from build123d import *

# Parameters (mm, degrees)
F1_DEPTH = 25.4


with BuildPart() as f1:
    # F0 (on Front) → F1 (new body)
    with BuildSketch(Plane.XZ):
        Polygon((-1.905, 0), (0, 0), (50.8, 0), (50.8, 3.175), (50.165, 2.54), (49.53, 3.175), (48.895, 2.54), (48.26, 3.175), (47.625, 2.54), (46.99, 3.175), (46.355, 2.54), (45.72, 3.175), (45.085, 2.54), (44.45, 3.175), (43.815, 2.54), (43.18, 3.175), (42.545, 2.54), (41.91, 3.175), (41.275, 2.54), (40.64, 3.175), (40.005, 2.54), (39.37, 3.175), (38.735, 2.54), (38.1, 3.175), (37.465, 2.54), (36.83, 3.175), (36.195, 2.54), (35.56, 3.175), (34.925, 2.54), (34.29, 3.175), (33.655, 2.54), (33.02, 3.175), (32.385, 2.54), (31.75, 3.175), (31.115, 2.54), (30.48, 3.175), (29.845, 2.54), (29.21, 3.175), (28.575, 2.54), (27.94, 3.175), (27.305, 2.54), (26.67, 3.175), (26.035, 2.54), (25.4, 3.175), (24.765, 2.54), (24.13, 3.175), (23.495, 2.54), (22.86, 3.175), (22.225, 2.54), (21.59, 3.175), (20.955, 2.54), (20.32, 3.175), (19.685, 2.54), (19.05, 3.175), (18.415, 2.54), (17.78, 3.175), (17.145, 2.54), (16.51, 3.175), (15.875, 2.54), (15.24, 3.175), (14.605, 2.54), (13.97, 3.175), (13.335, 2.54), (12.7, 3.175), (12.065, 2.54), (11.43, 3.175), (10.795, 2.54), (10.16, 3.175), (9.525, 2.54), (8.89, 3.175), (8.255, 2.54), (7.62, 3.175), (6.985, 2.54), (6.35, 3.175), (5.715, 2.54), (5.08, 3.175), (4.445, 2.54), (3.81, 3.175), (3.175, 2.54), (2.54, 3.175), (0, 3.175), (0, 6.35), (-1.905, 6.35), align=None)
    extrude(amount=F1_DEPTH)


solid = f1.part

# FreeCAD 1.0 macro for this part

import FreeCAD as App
import Part
import Sketcher
Q = App.Units.Quantity


def add_polygon(sketch, points):
    """Adds a closed chain of lines whose ends are joined by coincident constraints."""
    first, n = sketch.GeometryCount, len(points)
    for a, b in zip(points, points[1:] + points[:1]):
        sketch.addGeometry(Part.LineSegment(App.Vector(*a, 0), App.Vector(*b, 0)), False)
    for i in range(n):
        sketch.addConstraint(Sketcher.Constraint("Coincident", first + i, 2, first + (i + 1) % n, 1))

doc = App.newDocument("Part")
body = doc.addObject("PartDesign::Body", "Body")

# Sketch on XZ plane
sketch1 = doc.addObject("Sketcher::SketchObject", "Sketch")
body.addObject(sketch1)
sketch1.AttachmentSupport = (doc.XZ_Plane, [""])
sketch1.MapMode = "FlatFace"
add_polygon(sketch1, [(-1.905, 0), (50.8, 0), (50.8, 3.175), (50.165, 2.54), (49.53, 3.175), (48.895, 2.54), (48.26, 3.175), (47.625, 2.54), (46.99, 3.175), (46.355, 2.54), (45.72, 3.175), (45.085, 2.54), (44.45, 3.175), (43.815, 2.54), (43.18, 3.175), (42.545, 2.54), (41.91, 3.175), (41.275, 2.54), (40.64, 3.175), (40.005, 2.54), (39.37, 3.175), (38.735, 2.54), (38.1, 3.175), (37.465, 2.54), (36.83, 3.175), (36.195, 2.54), (35.56, 3.175), (34.925, 2.54), (34.29, 3.175), (33.655, 2.54), (33.02, 3.175), (32.385, 2.54), (31.75, 3.175), (31.115, 2.54), (30.48, 3.175), (29.845, 2.54), (29.21, 3.175), (28.575, 2.54), (27.94, 3.175), (27.305, 2.54), (26.67, 3.175), (26.035, 2.54), (25.4, 3.175), (24.765, 2.54), (24.13, 3.175), (23.495, 2.54), (22.86, 3.175), (22.225, 2.54), (21.59, 3.175), (20.955, 2.54), (20.32, 3.175), (19.685, 2.54), (19.05, 3.175), (18.415, 2.54), (17.78, 3.175), (17.145, 2.54), (16.51, 3.175), (15.875, 2.54), (15.24, 3.175), (14.605, 2.54), (13.97, 3.175), (13.335, 2.54), (12.7, 3.175), (12.065, 2.54), (11.43, 3.175), (10.795, 2.54), (10.16, 3.175), (9.525, 2.54), (8.89, 3.175), (8.255, 2.54), (7.62, 3.175), (6.985, 2.54), (6.35, 3.175), (5.715, 2.54), (5.08, 3.175), (4.445, 2.54), (3.81, 3.175), (3.175, 2.54), (2.54, 3.175), (0, 3.175), (0, 6.35), (-1.905, 6.35)])  # lines 0-81
sketch1.addConstraint([
    Sketcher.Constraint("Horizontal", 0),
    Sketcher.Constraint("Vertical", 1),
    Sketcher.Constraint("Horizontal", 78),
    Sketcher.Constraint("Vertical", 79),
    Sketcher.Constraint("Horizontal", 80),
    Sketcher.Constraint("Vertical", 81),
    Sketcher.Constraint("PointOnObject", 0, 2, -1),
    Sketcher.Constraint("PointOnObject", 78, 2, -2),
    Sketcher.Constraint("Perpendicular", 2, 3),
    Sketcher.Constraint("Perpendicular", 3, 4),
    Sketcher.Constraint("Perpendicular", 4, 5),
    Sketcher.Constraint("Perpendicular", 5, 6),
    Sketcher.Constraint("Perpendicular", 6, 7),
    Sketcher.Constraint("Perpendicular", 7, 8),
    Sketcher.Constraint("Perpendicular", 8, 9),
    Sketcher.Constraint("Perpendicular", 9, 10),
    Sketcher.Constraint("Perpendicular", 10, 11),
    Sketcher.Constraint("Perpendicular", 11, 12),
    Sketcher.Constraint("Perpendicular", 12, 13),
    Sketcher.Constraint("Perpendicular", 13, 14),
    Sketcher.Constraint("Perpendicular", 14, 15),
    Sketcher.Constraint("Perpendicular", 15, 16),
    Sketcher.Constraint("Perpendicular", 16, 17),
    Sketcher.Constraint("Perpendicular", 17, 18),
    Sketcher.Constraint("Perpendicular", 18, 19),
    Sketcher.Constraint("Perpendicular", 19, 20),
    Sketcher.Constraint("Perpendicular", 20, 21),
    Sketcher.Constraint("Perpendicular", 21, 22),
    Sketcher.Constraint("Perpendicular", 22, 23),
    Sketcher.Constraint("Perpendicular", 23, 24),
    Sketcher.Constraint("Perpendicular", 24, 25),
    Sketcher.Constraint("Perpendicular", 25, 26),
    Sketcher.Constraint("Perpendicular", 26, 27),
    Sketcher.Constraint("Perpendicular", 27, 28),
    Sketcher.Constraint("Perpendicular", 28, 29),
    Sketcher.Constraint("Perpendicular", 29, 30),
    Sketcher.Constraint("Perpendicular", 30, 31),
    Sketcher.Constraint("Perpendicular", 31, 32),
    Sketcher.Constraint("Perpendicular", 32, 33),
    Sketcher.Constraint("Perpendicular", 33, 34),
    Sketcher.Constraint("Perpendicular", 34, 35),
    Sketcher.Constraint("Perpendicular", 35, 36),
    Sketcher.Constraint("Perpendicular", 36, 37),
    Sketcher.Constraint("Perpendicular", 37, 38),
    Sketcher.Constraint("Perpendicular", 38, 39),
    Sketcher.Constraint("Perpendicular", 39, 40),
    Sketcher.Constraint("Perpendicular", 40, 41),
    Sketcher.Constraint("Perpendicular", 41, 42),
    Sketcher.Constraint("Perpendicular", 42, 43),
    Sketcher.Constraint("Perpendicular", 43, 44),
    Sketcher.Constraint("Perpendicular", 44, 45),
    Sketcher.Constraint("Perpendicular", 45, 46),
    Sketcher.Constraint("Perpendicular", 46, 47),
    Sketcher.Constraint("Perpendicular", 47, 48),
    Sketcher.Constraint("Perpendicular", 48, 49),
    Sketcher.Constraint("Perpendicular", 49, 50),
    Sketcher.Constraint("Perpendicular", 50, 51),
    Sketcher.Constraint("Perpendicular", 51, 52),
    Sketcher.Constraint("Perpendicular", 52, 53),
    Sketcher.Constraint("Perpendicular", 53, 54),
    Sketcher.Constraint("Perpendicular", 54, 55),
    Sketcher.Constraint("Perpendicular", 55, 56),
    Sketcher.Constraint("Perpendicular", 56, 57),
    Sketcher.Constraint("Perpendicular", 57, 58),
    Sketcher.Constraint("Perpendicular", 58, 59),
    Sketcher.Constraint("Perpendicular", 59, 60),
    Sketcher.Constraint("Perpendicular", 60, 61),
    Sketcher.Constraint("Perpendicular", 61, 62),
    Sketcher.Constraint("Perpendicular", 62, 63),
    Sketcher.Constraint("Perpendicular", 63, 64),
    Sketcher.Constraint("Perpendicular", 64, 65),
    Sketcher.Constraint("Perpendicular", 65, 66),
    Sketcher.Constraint("Perpendicular", 66, 67),
    Sketcher.Constraint("Perpendicular", 67, 68),
    Sketcher.Constraint("Perpendicular", 68, 69),
    Sketcher.Constraint("Perpendicular", 69, 70),
    Sketcher.Constraint("Perpendicular", 70, 71),
    Sketcher.Constraint("Perpendicular", 71, 72),
    Sketcher.Constraint("Perpendicular", 72, 73),
    Sketcher.Constraint("Perpendicular", 73, 74),
    Sketcher.Constraint("Perpendicular", 74, 75),
    Sketcher.Constraint("Perpendicular", 75, 76),
    Sketcher.Constraint("Perpendicular", 76, 77),
    Sketcher.Constraint("Horizontal", 1, 2, 3, 2),
    Sketcher.Constraint("Horizontal", 2, 2, 4, 2),
    Sketcher.Constraint("Horizontal", 3, 2, 5, 2),
    Sketcher.Constraint("Horizontal", 4, 2, 6, 2),
    Sketcher.Constraint("Horizontal", 5, 2, 7, 2),
    Sketcher.Constraint("Horizontal", 6, 2, 8, 2),
    Sketcher.Constraint("Horizontal", 7, 2, 9, 2),
    Sketcher.Constraint("Horizontal", 8, 2, 10, 2),
    Sketcher.Constraint("Horizontal", 9, 2, 11, 2),
    Sketcher.Constraint("Horizontal", 10, 2, 12, 2),
    Sketcher.Constraint("Horizontal", 11, 2, 13, 2),
    Sketcher.Constraint("Horizontal", 12, 2, 14, 2),
    Sketcher.Constraint("Horizontal", 13, 2, 15, 2),
    Sketcher.Constraint("Horizontal", 14, 2, 16, 2),
    Sketcher.Constraint("Horizontal", 15, 2, 17, 2),
    Sketcher.Constraint("Horizontal", 16, 2, 18, 2),
    Sketcher.Constraint("Horizontal", 17, 2, 19, 2),
    Sketcher.Constraint("Horizontal", 18, 2, 20, 2),
    Sketcher.Constraint("Horizontal", 19, 2, 21, 2),
    Sketcher.Constraint("Horizontal", 20, 2, 22, 2),
    Sketcher.Constraint("Horizontal", 21, 2, 23, 2),
    Sketcher.Constraint("Horizontal", 22, 2, 24, 2),
    Sketcher.Constraint("Horizontal", 23, 2, 25, 2),
    Sketcher.Constraint("Horizontal", 24, 2, 26, 2),
    Sketcher.Constraint("Horizontal", 25, 2, 27, 2),
    Sketcher.Constraint("Horizontal", 26, 2, 28, 2),
    Sketcher.Constraint("Horizontal", 27, 2, 29, 2),
    Sketcher.Constraint("Horizontal", 28, 2, 30, 2),
    Sketcher.Constraint("Horizontal", 29, 2, 31, 2),
    Sketcher.Constraint("Horizontal", 30, 2, 32, 2),
    Sketcher.Constraint("Horizontal", 31, 2, 33, 2),
    Sketcher.Constraint("Horizontal", 32, 2, 34, 2),
    Sketcher.Constraint("Horizontal", 33, 2, 35, 2),
    Sketcher.Constraint("Horizontal", 34, 2, 36, 2),
    Sketcher.Constraint("Horizontal", 35, 2, 37, 2),
    Sketcher.Constraint("Horizontal", 36, 2, 38, 2),
    Sketcher.Constraint("Horizontal", 37, 2, 39, 2),
    Sketcher.Constraint("Horizontal", 38, 2, 40, 2),
    Sketcher.Constraint("Horizontal", 39, 2, 41, 2),
    Sketcher.Constraint("Horizontal", 40, 2, 42, 2),
    Sketcher.Constraint("Horizontal", 41, 2, 43, 2),
    Sketcher.Constraint("Horizontal", 42, 2, 44, 2),
    Sketcher.Constraint("Horizontal", 43, 2, 45, 2),
    Sketcher.Constraint("Horizontal", 44, 2, 46, 2),
    Sketcher.Constraint("Horizontal", 45, 2, 47, 2),
    Sketcher.Constraint("Horizontal", 46, 2, 48, 2),
    Sketcher.Constraint("Horizontal", 47, 2, 49, 2),
    Sketcher.Constraint("Horizontal", 48, 2, 50, 2),
    Sketcher.Constraint("Horizontal", 49, 2, 51, 2),
    Sketcher.Constraint("Horizontal", 50, 2, 52, 2),
    Sketcher.Constraint("Horizontal", 51, 2, 53, 2),
    Sketcher.Constraint("Horizontal", 52, 2, 54, 2),
    Sketcher.Constraint("Horizontal", 53, 2, 55, 2),
    Sketcher.Constraint("Horizontal", 54, 2, 56, 2),
    Sketcher.Constraint("Horizontal", 55, 2, 57, 2),
    Sketcher.Constraint("Horizontal", 56, 2, 58, 2),
    Sketcher.Constraint("Horizontal", 57, 2, 59, 2),
    Sketcher.Constraint("Horizontal", 58, 2, 60, 2),
    Sketcher.Constraint("Horizontal", 59, 2, 61, 2),
    Sketcher.Constraint("Horizontal", 60, 2, 62, 2),
    Sketcher.Constraint("Horizontal", 61, 2, 63, 2),
    Sketcher.Constraint("Horizontal", 62, 2, 64, 2),
    Sketcher.Constraint("Horizontal", 63, 2, 65, 2),
    Sketcher.Constraint("Horizontal", 64, 2, 66, 2),
    Sketcher.Constraint("Horizontal", 65, 2, 67, 2),
    Sketcher.Constraint("Horizontal", 66, 2, 68, 2),
    Sketcher.Constraint("Horizontal", 67, 2, 69, 2),
    Sketcher.Constraint("Horizontal", 68, 2, 70, 2),
    Sketcher.Constraint("Horizontal", 69, 2, 71, 2),
    Sketcher.Constraint("Horizontal", 70, 2, 72, 2),
    Sketcher.Constraint("Horizontal", 71, 2, 73, 2),
    Sketcher.Constraint("Horizontal", 72, 2, 74, 2),
    Sketcher.Constraint("Horizontal", 73, 2, 75, 2),
    Sketcher.Constraint("Horizontal", 74, 2, 76, 2),
    Sketcher.Constraint("Horizontal", 75, 2, 77, 2),
    Sketcher.Constraint("Equal", 1, 79),
    Sketcher.Constraint("Equal", 2, 3),
    Sketcher.Constraint("DistanceX", 78, 2, 78, 1, Q("0.1 in")),
    Sketcher.Constraint("DistanceX", -1, 1, 0, 2, Q("2 in")),
    Sketcher.Constraint("DistanceY", 81, 2, 81, 1, Q("0.25 in")),
    Sketcher.Constraint("DistanceX", 0, 1, 0, 2, Q("2.075 in")),
])
pad1 = doc.addObject("PartDesign::Pad", "Pad")
body.addObject(pad1)
pad1.Profile = sketch1
pad1.Length = Q("1 in")

doc.recompute()
